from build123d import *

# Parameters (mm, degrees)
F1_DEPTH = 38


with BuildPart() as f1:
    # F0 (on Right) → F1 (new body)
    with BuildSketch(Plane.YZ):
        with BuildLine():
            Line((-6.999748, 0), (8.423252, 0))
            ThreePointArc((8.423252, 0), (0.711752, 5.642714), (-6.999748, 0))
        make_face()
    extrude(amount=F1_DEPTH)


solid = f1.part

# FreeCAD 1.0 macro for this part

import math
import FreeCAD as App
import Part
import Sketcher
from FreeCAD import Vector
Q = App.Units.Quantity

doc = App.newDocument("Part")
params = doc.addObject("Spreadsheet::Sheet", "Params")
for row, (alias, value) in enumerate([
    ("pad1_length", "38 mm"),
], start=1):
    params.set(f"A{row}", alias)
    params.set(f"B{row}", "=" + value)
    params.setAlias(f"B{row}", alias)

body = doc.addObject("PartDesign::Body", "Body")

# Sketch on YZ plane
sketch1 = body.newObject("Sketcher::SketchObject", "Sketch")
sketch1.AttachmentSupport = (doc.getObject("YZ_Plane"), [""])
sketch1.MapMode = "FlatFace"
sketch1.addGeometry(Part.LineSegment(Vector(-6.999748, 0, 0), Vector(8.423252, 0, 0)), False)
sketch1.addGeometry(Part.ArcOfCircle(Part.Circle(Vector(0.711752, -2.448025, 0), Vector(0, 0, 1), 8.090739), math.radians(17.612104), math.radians(162.387896)), False)
sketch1.addConstraint(Sketcher.Constraint("Coincident", 0, 1, 1, 2))
sketch1.addConstraint(Sketcher.Constraint("Coincident", 1, 1, 0, 2))
sketch1.addConstraint(Sketcher.Constraint("Horizontal", 0))
sketch1.addConstraint(Sketcher.Constraint("PointOnObject", 0, 1, -1))
sketch1.addConstraint(Sketcher.Constraint("DistanceX", 0, 1, 0, 2, Q("15.423 mm")))
sketch1.addConstraint(Sketcher.Constraint("Radius", 1, Q("8.090739 mm")))
sketch1.addConstraint(Sketcher.Constraint("DistanceX", 0, 1, -1, 1, Q("6.999748 mm")))
pad1 = body.newObject("PartDesign::Pad", "Pad")
pad1.Profile = sketch1
pad1.setExpression("Length", "Params.pad1_length")

doc.recompute()
